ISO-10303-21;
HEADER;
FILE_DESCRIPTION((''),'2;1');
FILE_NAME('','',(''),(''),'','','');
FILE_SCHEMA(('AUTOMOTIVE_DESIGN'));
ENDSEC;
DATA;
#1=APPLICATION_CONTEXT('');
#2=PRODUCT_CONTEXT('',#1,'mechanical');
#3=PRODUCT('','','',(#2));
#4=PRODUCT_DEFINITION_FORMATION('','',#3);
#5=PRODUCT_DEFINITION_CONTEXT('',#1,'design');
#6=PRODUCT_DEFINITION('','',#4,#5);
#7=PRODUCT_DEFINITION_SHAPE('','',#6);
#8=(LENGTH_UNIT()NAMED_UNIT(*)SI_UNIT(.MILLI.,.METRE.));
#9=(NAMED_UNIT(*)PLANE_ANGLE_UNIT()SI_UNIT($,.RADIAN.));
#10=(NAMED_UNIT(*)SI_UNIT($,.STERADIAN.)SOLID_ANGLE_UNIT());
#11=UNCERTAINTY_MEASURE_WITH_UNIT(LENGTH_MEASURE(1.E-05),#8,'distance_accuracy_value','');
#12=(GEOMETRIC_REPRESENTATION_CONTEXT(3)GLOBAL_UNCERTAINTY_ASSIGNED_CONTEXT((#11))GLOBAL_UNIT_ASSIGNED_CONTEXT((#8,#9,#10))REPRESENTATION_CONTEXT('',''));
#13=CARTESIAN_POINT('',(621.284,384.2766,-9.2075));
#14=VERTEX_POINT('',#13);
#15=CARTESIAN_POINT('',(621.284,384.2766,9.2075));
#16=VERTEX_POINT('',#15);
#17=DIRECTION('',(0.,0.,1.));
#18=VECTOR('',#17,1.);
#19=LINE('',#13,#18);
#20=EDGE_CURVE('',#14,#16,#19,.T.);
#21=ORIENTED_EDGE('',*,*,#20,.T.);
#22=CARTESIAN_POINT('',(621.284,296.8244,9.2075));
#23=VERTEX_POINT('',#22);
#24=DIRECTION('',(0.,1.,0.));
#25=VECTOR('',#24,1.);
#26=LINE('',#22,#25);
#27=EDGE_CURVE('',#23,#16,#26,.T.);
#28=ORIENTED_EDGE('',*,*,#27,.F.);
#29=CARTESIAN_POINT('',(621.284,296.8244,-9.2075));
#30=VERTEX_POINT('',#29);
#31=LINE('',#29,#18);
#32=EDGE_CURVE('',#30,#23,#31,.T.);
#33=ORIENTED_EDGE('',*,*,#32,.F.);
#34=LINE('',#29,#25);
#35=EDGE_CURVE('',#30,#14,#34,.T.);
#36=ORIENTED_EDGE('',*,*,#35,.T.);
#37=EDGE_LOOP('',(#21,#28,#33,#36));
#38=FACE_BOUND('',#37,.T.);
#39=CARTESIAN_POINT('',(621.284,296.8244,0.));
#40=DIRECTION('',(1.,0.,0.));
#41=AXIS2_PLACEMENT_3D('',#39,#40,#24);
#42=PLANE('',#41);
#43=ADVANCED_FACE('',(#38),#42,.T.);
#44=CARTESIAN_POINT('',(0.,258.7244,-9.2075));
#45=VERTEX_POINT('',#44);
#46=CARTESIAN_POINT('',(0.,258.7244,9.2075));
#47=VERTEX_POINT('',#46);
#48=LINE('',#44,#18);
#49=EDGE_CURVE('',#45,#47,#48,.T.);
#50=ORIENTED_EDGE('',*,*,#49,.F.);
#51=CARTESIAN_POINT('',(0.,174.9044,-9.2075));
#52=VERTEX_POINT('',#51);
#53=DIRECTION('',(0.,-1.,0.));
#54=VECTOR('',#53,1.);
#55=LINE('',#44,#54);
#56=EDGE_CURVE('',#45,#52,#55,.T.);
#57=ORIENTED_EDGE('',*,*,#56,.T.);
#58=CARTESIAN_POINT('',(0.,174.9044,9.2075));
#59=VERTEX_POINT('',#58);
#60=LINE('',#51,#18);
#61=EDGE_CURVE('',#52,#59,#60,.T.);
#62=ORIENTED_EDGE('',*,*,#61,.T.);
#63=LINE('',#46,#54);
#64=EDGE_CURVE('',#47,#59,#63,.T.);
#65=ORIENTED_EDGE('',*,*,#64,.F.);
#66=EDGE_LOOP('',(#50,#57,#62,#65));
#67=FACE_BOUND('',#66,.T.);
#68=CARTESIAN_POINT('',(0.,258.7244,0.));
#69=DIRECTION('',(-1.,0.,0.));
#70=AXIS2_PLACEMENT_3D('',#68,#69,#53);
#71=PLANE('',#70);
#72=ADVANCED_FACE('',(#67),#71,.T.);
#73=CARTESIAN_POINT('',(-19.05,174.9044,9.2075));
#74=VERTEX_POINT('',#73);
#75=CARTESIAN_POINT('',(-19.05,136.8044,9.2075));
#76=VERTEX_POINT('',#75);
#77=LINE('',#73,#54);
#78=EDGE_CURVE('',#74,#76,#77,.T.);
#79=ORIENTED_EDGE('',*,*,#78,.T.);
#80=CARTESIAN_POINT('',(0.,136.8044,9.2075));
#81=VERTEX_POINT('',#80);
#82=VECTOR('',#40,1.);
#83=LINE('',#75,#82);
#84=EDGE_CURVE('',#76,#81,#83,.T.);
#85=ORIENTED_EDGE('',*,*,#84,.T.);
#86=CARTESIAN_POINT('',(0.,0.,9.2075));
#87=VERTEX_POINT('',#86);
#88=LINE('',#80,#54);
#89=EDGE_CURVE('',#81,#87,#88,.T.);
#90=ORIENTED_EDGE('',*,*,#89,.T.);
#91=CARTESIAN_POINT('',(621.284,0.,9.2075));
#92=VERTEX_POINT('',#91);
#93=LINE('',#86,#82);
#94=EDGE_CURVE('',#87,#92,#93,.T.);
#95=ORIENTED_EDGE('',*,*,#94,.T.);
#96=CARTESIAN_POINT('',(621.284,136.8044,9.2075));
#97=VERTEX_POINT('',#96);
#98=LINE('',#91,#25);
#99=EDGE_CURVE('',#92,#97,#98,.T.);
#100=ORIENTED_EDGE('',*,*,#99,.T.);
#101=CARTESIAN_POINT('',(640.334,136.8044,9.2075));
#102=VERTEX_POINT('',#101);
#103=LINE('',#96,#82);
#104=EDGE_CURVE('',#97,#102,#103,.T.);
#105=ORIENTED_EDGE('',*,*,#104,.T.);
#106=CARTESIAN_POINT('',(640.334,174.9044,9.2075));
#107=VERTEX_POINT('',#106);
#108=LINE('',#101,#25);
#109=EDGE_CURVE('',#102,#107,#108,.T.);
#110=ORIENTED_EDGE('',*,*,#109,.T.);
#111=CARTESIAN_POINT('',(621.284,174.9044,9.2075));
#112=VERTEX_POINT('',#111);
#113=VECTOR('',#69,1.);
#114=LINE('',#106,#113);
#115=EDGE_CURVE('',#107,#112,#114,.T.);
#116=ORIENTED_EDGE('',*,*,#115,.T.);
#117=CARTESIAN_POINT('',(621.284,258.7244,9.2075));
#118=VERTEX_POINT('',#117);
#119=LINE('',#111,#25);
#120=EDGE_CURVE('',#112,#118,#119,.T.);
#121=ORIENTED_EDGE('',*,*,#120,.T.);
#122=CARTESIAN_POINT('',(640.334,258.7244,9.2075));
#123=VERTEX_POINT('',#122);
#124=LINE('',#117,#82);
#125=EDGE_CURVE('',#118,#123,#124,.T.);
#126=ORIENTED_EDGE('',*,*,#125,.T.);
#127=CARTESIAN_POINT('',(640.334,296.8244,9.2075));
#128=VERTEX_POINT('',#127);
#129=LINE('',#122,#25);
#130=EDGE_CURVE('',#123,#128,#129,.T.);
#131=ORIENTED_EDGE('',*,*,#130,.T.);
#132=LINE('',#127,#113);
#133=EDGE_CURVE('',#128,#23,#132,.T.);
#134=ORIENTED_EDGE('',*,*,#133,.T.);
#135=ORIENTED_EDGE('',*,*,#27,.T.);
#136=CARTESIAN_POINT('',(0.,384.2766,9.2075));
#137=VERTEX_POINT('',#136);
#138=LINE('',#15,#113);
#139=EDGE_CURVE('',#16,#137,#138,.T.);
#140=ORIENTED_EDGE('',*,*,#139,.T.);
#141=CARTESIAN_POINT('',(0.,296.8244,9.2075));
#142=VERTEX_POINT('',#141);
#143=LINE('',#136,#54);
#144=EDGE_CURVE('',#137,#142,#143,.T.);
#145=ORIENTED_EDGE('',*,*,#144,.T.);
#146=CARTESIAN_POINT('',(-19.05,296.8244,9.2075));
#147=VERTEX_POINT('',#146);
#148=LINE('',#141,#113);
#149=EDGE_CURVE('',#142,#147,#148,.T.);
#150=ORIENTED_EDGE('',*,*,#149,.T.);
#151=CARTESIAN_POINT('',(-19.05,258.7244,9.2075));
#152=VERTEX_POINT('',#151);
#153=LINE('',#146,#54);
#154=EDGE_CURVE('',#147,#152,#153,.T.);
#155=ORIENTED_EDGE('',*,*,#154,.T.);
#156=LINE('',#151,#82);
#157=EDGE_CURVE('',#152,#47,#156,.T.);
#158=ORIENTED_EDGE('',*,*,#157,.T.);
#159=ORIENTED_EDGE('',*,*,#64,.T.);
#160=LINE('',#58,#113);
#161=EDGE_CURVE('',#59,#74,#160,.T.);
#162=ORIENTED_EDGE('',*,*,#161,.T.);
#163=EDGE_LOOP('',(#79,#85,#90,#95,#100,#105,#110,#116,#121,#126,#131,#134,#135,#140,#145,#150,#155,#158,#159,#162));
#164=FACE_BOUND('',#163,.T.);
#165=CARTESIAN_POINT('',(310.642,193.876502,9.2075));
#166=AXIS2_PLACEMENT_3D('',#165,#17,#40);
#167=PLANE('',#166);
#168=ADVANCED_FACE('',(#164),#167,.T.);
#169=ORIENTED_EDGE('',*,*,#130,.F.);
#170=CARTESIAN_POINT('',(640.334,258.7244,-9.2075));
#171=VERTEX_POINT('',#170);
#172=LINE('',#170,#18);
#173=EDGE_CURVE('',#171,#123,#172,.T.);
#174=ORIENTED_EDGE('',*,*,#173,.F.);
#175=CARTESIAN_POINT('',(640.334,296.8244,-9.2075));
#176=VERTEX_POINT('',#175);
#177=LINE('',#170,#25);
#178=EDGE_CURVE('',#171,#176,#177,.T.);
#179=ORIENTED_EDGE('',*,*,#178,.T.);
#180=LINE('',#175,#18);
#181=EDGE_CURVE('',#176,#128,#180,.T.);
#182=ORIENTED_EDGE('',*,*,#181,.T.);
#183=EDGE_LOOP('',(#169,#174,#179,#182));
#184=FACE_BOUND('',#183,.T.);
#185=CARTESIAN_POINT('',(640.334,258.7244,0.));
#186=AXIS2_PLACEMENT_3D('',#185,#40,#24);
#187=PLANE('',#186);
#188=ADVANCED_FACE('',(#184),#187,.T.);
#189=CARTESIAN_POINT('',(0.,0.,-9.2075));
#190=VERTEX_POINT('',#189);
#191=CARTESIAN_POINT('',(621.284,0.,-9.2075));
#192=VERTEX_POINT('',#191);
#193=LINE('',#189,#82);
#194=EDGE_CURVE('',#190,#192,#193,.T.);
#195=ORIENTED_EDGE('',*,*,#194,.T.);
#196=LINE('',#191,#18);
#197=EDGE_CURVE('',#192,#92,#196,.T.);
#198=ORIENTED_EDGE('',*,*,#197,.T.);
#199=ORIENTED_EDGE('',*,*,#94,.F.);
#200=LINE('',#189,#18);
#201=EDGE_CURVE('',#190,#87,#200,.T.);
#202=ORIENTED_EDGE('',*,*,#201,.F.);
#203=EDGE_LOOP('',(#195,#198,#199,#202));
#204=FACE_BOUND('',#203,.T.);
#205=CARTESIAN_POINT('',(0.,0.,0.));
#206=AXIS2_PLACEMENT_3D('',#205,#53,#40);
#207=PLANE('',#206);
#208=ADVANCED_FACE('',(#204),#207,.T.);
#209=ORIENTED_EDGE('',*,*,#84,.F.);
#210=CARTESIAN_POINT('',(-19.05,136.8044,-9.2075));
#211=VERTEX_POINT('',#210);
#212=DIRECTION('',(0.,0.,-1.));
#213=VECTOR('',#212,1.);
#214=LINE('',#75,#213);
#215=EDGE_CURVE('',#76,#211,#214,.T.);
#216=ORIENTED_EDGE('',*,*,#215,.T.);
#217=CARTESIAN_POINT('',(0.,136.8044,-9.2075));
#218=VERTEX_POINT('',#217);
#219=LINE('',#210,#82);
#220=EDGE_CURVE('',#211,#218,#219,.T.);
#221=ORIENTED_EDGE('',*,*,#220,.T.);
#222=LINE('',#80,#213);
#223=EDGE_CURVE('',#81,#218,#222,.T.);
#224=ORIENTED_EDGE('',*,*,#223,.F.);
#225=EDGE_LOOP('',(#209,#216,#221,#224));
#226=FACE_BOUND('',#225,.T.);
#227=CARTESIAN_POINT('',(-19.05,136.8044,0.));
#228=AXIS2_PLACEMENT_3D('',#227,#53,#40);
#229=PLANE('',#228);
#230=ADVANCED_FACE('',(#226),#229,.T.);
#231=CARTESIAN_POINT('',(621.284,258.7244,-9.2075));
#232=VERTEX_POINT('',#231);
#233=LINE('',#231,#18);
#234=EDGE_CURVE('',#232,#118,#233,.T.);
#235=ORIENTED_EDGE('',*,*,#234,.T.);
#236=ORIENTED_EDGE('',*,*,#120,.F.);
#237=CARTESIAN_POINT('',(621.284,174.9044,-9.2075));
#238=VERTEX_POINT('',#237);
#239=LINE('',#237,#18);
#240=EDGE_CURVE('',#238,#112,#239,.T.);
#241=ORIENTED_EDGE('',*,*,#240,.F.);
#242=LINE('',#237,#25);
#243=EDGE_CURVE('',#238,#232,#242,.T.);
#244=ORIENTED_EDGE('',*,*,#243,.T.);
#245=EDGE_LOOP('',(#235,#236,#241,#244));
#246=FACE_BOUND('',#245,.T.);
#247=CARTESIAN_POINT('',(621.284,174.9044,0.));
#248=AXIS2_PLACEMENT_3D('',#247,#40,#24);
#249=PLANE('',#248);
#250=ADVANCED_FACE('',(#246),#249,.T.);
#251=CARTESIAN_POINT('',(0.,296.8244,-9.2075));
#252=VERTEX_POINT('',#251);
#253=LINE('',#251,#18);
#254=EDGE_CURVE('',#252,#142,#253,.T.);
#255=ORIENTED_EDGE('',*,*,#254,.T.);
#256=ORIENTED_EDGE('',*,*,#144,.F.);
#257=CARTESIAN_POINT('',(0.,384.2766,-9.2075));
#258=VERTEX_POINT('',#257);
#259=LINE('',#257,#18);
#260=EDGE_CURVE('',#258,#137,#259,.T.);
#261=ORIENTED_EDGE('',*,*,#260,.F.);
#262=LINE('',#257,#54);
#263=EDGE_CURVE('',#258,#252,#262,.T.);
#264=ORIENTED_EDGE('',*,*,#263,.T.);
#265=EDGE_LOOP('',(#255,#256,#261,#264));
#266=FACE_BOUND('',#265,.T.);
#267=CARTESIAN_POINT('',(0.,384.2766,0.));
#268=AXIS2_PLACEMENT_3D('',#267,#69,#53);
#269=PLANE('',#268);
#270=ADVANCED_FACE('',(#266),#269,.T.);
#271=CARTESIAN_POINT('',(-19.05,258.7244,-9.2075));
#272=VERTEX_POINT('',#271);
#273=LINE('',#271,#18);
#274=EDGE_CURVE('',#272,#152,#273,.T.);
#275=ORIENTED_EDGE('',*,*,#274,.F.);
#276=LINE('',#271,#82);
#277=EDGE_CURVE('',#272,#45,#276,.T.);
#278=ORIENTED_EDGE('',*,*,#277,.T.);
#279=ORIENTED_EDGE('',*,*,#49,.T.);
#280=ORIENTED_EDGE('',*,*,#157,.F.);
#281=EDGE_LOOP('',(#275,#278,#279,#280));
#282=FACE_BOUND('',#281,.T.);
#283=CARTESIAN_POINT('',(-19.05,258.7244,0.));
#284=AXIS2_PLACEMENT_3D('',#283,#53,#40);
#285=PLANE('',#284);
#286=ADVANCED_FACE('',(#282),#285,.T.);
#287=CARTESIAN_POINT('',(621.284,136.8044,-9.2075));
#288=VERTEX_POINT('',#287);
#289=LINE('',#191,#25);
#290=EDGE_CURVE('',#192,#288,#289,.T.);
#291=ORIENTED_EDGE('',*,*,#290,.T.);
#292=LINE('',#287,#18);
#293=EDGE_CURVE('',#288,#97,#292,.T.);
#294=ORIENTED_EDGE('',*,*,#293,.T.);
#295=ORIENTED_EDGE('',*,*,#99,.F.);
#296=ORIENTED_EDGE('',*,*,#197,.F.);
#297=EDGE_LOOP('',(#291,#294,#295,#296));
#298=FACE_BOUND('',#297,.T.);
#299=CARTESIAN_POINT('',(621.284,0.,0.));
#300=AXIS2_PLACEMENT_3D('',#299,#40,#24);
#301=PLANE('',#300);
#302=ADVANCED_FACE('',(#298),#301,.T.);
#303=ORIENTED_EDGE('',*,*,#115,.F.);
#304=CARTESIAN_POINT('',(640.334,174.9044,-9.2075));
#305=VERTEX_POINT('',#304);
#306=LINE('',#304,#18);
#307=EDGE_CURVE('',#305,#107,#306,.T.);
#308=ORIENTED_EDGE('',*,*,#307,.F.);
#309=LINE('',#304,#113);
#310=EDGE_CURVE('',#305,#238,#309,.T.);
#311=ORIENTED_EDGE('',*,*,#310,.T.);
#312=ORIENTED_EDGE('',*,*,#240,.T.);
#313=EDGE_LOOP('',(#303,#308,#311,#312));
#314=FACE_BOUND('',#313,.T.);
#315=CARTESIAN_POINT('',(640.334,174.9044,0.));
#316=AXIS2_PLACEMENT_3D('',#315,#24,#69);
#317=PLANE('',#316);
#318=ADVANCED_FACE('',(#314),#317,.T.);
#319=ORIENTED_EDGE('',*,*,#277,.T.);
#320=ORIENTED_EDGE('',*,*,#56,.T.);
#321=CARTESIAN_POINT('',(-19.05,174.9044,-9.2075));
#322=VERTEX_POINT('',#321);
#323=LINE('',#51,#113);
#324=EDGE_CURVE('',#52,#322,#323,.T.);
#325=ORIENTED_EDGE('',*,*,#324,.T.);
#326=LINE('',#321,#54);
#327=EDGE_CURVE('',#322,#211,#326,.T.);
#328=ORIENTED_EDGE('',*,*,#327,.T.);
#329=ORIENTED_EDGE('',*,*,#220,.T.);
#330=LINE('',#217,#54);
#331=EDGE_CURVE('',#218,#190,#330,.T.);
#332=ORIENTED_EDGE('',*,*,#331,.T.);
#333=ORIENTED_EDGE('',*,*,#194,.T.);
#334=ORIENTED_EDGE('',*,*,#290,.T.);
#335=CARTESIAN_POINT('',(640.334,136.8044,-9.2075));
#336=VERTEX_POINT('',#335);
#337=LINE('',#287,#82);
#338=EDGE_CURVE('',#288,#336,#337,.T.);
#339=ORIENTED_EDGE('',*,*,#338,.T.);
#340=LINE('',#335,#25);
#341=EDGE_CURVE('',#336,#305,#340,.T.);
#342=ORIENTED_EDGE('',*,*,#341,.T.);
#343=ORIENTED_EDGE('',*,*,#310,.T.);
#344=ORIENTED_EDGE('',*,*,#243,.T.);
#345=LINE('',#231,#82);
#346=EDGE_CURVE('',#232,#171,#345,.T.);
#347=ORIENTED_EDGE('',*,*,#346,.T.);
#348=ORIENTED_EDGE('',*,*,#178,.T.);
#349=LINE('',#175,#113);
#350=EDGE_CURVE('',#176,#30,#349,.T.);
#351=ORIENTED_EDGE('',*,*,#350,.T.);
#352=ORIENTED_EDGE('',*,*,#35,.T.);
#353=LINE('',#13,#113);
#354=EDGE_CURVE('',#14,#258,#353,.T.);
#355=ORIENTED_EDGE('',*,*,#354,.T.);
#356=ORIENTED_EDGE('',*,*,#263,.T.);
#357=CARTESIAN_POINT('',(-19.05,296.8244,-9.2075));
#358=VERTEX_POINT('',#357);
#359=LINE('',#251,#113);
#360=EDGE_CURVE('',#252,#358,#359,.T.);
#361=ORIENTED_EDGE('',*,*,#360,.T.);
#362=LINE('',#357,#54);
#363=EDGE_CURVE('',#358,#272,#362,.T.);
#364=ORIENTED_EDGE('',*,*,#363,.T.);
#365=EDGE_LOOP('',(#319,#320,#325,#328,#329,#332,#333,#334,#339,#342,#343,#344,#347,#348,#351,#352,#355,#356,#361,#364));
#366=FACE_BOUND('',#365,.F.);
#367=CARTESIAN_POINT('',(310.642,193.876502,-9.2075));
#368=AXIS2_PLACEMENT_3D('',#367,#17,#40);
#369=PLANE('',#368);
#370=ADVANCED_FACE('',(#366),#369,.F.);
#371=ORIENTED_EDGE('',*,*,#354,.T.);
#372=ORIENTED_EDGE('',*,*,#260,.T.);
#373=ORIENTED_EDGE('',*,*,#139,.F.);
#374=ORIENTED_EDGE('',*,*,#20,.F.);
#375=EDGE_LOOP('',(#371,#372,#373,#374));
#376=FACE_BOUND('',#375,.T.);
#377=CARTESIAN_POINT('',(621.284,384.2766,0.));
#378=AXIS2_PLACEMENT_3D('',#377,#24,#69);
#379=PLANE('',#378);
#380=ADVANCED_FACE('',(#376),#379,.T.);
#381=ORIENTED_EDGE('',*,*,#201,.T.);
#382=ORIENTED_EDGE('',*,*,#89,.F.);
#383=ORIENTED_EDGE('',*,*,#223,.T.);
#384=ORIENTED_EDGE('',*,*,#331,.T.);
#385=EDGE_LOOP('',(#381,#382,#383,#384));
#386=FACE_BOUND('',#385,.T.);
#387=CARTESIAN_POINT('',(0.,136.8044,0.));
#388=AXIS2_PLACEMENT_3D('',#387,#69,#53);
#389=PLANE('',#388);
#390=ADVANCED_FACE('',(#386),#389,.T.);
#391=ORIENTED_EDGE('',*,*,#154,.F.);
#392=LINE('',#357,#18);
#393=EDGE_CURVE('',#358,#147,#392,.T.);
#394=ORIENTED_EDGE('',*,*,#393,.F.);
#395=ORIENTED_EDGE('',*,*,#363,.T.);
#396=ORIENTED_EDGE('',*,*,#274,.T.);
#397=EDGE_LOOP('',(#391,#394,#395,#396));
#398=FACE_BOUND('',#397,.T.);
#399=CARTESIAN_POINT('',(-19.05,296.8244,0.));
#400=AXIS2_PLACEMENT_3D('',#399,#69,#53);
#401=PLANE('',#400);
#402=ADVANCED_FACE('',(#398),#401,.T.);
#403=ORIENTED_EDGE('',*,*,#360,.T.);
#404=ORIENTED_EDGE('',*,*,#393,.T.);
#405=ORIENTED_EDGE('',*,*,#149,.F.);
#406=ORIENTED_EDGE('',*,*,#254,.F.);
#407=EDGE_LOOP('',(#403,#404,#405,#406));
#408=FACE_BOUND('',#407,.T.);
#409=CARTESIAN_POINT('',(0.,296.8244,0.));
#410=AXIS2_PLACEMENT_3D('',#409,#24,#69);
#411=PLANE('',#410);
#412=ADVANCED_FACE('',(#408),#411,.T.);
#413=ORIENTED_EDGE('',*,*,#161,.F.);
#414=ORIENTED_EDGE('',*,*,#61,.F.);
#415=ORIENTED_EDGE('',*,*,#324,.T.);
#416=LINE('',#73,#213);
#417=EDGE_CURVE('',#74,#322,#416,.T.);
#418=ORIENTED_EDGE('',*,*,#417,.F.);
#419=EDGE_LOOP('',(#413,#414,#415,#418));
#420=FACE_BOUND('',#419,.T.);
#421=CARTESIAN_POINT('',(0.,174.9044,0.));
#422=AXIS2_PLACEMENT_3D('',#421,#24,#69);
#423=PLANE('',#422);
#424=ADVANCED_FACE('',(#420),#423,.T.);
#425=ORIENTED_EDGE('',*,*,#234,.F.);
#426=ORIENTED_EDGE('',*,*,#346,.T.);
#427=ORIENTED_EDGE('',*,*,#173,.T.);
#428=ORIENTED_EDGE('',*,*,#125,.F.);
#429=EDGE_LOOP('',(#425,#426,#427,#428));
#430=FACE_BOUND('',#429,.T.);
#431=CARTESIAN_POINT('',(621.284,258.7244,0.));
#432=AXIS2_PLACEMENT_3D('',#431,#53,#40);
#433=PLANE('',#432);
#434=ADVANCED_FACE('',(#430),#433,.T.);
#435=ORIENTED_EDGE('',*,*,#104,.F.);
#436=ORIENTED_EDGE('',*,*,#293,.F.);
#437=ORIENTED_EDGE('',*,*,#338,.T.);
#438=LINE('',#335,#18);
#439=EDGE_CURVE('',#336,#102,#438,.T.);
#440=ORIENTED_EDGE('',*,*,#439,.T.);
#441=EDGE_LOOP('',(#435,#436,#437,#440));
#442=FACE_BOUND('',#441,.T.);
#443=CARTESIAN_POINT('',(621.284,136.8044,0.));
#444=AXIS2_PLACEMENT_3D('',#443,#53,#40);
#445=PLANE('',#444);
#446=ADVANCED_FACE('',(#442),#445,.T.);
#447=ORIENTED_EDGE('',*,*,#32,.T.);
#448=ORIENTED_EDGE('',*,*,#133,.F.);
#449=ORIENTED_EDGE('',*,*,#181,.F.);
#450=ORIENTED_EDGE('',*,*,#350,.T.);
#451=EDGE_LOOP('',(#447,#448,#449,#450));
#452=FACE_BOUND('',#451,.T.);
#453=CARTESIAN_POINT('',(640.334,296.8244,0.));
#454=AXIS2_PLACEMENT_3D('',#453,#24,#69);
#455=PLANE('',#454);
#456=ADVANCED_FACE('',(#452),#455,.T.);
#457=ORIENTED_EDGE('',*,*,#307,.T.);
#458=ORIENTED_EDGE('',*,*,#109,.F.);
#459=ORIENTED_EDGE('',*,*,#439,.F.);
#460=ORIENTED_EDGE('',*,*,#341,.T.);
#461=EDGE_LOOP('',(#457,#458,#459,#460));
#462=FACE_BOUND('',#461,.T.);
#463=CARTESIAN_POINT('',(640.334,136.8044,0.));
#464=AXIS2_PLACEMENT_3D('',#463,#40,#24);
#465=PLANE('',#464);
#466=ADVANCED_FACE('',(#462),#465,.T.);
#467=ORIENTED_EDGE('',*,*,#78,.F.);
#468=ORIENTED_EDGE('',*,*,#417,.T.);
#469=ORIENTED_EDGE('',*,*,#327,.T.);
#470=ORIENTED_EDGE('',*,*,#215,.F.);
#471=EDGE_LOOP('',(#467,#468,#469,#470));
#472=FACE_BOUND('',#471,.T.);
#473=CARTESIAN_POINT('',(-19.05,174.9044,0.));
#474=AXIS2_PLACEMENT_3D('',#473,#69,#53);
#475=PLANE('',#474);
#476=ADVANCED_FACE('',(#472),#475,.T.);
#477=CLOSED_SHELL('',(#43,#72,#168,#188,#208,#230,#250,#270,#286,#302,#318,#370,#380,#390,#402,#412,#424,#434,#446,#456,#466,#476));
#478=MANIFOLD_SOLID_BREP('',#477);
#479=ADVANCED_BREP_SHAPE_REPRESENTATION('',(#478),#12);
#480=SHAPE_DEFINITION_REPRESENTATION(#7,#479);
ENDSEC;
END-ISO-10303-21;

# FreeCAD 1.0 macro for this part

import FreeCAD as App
import Part
import Sketcher
from FreeCAD import Vector
Q = App.Units.Quantity


def add_polygon(sketch, points):
    """Adds a closed chain of lines whose ends are joined by coincident constraints."""
    first, n = sketch.GeometryCount, len(points)
    for a, b in zip(points, points[1:] + points[:1]):
        sketch.addGeometry(Part.LineSegment(App.Vector(*a, 0), App.Vector(*b, 0)), False)
    for i in range(n):
        sketch.addConstraint(Sketcher.Constraint("Coincident", first + i, 2, first + (i + 1) % n, 1))

doc = App.newDocument("Part")
body = doc.addObject("PartDesign::Body", "Body")

sketch1 = doc.addObject("Sketcher::SketchObject", "Sketch")
body.addObject(sketch1)
sketch1.AttachmentSupport = (doc.XY_Plane, [""])
sketch1.MapMode = "FlatFace"
add_polygon(sketch1, [(0, 137), (0, 0), (621, 0), (621, 137), (640, 137), (640, 175), (621, 175), (621, 259), (640, 259), (640, 297), (621, 297), (621, 384), (0, 384), (0, 297), (-19, 297), (-19, 259), (0, 259), (0, 175), (-19, 175), (-19, 137)])
sketch1.addConstraint([
    Sketcher.Constraint("Vertical", 0),
    Sketcher.Constraint("Horizontal", 1),
    Sketcher.Constraint("Vertical", 2),
    Sketcher.Constraint("Horizontal", 3),
    Sketcher.Constraint("Vertical", 4),
    Sketcher.Constraint("Horizontal", 5),
    Sketcher.Constraint("Vertical", 6),
    Sketcher.Constraint("Horizontal", 7),
    Sketcher.Constraint("Vertical", 8),
    Sketcher.Constraint("Horizontal", 9),
    Sketcher.Constraint("Vertical", 10),
    Sketcher.Constraint("Horizontal", 11),
    Sketcher.Constraint("Vertical", 12),
    Sketcher.Constraint("Horizontal", 13),
    Sketcher.Constraint("Vertical", 14),
    Sketcher.Constraint("Horizontal", 15),
    Sketcher.Constraint("Vertical", 16),
    Sketcher.Constraint("Horizontal", 17),
    Sketcher.Constraint("Vertical", 18),
    Sketcher.Constraint("Horizontal", 19),
    Sketcher.Constraint("Coincident", 0, 2, -1, 1),
    Sketcher.Constraint("PointOnObject", 11, 2, -2),
    Sketcher.Constraint("PointOnObject", 15, 2, -2),
    Sketcher.Constraint("Horizontal", 9, 2, 12, 2),
    Sketcher.Constraint("Horizontal", 7, 2, 14, 2),
    Sketcher.Constraint("Horizontal", 5, 2, 16, 2),
    Sketcher.Constraint("Horizontal", 3, 2, 18, 2),
    Sketcher.Constraint("Vertical", 2, 2, 5, 2),
    Sketcher.Constraint("Vertical", 4, 2, 7, 2),
    Sketcher.Constraint("Vertical", 6, 2, 9, 2),
    Sketcher.Constraint("Vertical", 14, 2, 17, 2),
    Sketcher.Constraint("Equal", 9, 13),
    Sketcher.Constraint("Equal", 4, 8),
    Sketcher.Constraint("DistanceY", 4, 1, 4, 2, Q("1.5 in")),
    Sketcher.Constraint("DistanceY", 6, 1, 6, 2, Q("3.3 in")),
    Sketcher.Constraint("DistanceX", 1, 1, 1, 2, Q("24.46 in")),
    Sketcher.Constraint("DistanceX", 3, 1, 3, 2, Q("0.75 in")),
    Sketcher.Constraint("DistanceY", 0, 2, 0, 1, Q("5.386 in")),
    Sketcher.Constraint("DistanceY", 10, 1, 10, 2, Q("3.443 in")),
])
pad1 = doc.addObject("PartDesign::Pad", "Pad")
body.addObject(pad1)
pad1.Profile = sketch1
pad1.Length = Q("0.725 in")
pad1.Midplane = True

doc.recompute()
